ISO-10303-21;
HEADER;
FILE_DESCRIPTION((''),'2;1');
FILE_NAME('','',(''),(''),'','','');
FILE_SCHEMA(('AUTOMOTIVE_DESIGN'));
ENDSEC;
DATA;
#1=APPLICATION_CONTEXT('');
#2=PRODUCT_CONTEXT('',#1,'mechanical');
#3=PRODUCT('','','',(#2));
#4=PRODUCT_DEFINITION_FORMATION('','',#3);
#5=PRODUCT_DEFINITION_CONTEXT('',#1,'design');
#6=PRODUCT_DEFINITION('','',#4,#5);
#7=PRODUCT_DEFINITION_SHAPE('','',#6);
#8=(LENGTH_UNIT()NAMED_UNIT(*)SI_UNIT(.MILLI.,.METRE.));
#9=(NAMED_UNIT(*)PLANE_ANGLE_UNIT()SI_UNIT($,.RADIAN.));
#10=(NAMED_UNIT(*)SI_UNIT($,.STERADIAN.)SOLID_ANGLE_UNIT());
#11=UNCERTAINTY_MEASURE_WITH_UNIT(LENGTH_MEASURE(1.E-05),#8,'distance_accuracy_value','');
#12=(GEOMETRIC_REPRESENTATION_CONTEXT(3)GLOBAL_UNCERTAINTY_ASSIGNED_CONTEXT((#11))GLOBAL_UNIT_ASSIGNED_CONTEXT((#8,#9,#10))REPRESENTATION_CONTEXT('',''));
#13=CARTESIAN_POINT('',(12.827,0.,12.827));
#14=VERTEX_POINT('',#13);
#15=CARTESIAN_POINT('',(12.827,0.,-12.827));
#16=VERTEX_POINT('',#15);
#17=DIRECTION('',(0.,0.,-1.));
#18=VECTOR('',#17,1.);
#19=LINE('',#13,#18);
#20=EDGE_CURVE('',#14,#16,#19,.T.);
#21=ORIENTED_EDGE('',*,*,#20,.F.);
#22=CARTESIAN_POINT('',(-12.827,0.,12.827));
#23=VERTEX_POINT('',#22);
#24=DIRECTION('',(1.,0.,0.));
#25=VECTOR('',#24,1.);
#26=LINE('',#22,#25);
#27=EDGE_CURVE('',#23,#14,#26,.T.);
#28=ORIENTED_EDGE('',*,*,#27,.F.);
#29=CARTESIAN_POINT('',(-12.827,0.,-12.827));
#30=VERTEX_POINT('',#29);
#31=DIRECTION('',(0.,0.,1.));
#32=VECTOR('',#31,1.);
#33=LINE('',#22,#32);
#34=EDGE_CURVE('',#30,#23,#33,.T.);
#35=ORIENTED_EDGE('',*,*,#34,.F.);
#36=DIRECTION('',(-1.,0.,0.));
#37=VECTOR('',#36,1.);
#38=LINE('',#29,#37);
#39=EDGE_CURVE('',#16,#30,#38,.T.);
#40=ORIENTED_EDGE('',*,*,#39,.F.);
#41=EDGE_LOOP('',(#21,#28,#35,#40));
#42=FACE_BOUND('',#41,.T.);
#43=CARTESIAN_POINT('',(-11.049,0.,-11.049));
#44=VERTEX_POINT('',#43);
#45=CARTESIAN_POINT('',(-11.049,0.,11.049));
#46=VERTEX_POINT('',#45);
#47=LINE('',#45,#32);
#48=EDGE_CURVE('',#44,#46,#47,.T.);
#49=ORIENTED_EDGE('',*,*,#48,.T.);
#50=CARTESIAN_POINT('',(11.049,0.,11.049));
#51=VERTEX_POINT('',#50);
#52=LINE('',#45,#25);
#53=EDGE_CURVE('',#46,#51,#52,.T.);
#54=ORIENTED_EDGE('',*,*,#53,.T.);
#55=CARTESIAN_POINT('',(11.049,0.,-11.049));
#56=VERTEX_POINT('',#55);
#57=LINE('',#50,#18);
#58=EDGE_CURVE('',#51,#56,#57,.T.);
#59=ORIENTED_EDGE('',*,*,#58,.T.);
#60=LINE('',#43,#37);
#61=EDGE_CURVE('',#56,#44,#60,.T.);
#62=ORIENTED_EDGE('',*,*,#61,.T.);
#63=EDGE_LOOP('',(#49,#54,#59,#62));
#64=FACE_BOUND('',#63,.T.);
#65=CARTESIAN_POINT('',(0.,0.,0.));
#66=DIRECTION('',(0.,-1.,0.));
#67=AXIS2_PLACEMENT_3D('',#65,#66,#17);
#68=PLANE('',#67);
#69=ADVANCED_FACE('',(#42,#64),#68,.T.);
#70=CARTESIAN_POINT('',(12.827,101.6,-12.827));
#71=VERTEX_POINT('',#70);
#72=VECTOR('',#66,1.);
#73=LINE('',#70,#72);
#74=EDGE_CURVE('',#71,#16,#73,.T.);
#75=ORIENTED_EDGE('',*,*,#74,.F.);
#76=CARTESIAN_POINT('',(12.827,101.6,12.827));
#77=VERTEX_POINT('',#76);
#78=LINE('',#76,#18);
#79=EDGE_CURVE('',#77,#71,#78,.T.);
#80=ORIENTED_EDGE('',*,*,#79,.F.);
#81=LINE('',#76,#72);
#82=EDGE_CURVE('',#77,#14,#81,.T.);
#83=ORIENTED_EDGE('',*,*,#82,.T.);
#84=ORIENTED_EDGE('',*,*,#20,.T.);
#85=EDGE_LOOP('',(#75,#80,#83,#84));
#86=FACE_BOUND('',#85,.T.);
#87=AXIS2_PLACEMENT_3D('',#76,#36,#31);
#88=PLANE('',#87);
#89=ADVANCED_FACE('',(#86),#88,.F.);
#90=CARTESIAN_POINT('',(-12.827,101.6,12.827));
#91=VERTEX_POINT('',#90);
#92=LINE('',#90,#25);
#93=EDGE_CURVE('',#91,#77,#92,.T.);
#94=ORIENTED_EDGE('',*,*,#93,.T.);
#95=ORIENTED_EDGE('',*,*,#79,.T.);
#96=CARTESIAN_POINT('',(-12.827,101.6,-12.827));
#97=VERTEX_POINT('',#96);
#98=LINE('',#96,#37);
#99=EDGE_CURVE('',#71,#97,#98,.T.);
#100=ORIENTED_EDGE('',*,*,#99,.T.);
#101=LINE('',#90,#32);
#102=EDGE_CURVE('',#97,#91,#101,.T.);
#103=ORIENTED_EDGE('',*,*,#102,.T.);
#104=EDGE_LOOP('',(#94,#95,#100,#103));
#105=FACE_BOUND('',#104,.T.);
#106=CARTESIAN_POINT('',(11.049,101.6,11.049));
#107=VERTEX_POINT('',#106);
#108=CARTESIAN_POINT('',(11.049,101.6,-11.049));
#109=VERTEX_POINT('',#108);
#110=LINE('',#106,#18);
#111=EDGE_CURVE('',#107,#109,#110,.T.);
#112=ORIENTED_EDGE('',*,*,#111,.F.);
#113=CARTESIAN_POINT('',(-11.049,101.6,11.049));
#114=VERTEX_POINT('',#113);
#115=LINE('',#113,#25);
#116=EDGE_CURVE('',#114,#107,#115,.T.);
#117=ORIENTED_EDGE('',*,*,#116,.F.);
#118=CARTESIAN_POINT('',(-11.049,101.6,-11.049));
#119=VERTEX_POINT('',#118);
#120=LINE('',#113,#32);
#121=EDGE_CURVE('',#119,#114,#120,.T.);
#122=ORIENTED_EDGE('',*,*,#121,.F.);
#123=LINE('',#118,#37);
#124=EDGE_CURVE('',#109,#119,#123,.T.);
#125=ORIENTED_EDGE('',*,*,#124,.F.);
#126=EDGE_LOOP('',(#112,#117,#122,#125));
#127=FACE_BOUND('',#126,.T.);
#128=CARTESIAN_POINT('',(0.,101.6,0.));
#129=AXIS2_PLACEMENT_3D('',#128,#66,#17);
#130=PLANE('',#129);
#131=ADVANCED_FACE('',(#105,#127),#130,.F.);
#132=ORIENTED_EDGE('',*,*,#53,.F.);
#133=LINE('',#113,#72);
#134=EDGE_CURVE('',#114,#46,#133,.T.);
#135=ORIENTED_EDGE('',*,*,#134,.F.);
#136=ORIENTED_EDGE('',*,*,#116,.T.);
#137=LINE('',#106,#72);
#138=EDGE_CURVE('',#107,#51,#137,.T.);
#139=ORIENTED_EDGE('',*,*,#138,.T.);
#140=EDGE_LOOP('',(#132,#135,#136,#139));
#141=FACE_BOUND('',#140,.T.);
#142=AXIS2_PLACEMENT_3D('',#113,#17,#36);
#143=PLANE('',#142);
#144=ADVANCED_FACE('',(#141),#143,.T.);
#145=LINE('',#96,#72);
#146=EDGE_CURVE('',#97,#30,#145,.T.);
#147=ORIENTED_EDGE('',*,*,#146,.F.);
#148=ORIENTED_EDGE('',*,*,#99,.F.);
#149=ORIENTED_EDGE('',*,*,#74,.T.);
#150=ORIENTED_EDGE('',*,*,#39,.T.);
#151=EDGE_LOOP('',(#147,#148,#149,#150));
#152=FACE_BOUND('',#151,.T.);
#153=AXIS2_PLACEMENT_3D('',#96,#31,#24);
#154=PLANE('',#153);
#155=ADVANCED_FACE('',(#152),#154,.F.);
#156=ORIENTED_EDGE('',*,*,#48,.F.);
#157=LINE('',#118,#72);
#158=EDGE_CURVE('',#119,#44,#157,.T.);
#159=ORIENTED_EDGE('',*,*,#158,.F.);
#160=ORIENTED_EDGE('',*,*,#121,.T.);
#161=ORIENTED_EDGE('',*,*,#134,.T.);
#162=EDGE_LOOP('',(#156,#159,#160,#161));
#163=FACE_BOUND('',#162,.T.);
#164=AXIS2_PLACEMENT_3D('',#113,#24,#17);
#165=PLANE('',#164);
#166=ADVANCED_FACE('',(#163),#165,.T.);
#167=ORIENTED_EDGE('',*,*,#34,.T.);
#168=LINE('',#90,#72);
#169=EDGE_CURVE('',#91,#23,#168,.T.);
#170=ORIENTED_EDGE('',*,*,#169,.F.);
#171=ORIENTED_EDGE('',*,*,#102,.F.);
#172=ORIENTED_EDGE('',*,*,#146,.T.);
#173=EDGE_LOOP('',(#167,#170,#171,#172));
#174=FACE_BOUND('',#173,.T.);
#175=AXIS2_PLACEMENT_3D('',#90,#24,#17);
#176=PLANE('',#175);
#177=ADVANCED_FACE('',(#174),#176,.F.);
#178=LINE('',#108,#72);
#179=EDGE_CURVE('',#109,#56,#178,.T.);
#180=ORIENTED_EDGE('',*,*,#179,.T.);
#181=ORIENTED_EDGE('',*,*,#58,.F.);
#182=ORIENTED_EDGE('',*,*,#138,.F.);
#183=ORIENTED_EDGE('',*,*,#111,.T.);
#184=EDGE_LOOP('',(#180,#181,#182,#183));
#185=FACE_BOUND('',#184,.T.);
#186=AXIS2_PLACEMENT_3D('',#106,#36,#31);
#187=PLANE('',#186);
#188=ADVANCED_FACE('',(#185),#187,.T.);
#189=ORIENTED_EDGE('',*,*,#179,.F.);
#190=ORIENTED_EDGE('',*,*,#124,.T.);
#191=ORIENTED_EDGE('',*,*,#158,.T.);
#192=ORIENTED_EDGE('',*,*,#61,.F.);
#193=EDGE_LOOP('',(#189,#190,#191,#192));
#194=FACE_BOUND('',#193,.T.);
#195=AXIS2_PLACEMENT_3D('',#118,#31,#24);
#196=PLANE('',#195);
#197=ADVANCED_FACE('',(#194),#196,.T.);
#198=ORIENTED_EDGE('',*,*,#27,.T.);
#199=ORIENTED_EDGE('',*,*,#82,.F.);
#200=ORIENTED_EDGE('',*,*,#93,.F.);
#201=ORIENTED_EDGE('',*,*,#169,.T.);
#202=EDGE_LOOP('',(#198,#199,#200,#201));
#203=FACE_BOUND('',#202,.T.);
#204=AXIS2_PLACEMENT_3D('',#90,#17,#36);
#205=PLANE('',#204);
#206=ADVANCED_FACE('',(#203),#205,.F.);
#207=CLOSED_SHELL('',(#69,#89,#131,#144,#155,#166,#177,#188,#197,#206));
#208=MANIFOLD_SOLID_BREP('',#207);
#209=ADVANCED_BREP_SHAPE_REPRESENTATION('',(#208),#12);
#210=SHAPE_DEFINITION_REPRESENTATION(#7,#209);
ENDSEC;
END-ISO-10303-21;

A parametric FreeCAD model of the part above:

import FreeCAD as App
import Part
import Sketcher
Q = App.Units.Quantity


def add_polygon(sketch, points):
    """Adds a closed chain of lines whose ends are joined by coincident constraints."""
    first, n = sketch.GeometryCount, len(points)
    for a, b in zip(points, points[1:] + points[:1]):
        sketch.addGeometry(Part.LineSegment(App.Vector(*a, 0), App.Vector(*b, 0)), False)
    for i in range(n):
        sketch.addConstraint(Sketcher.Constraint("Coincident", first + i, 2, first + (i + 1) % n, 1))

doc = App.newDocument("Part")
body = doc.addObject("PartDesign::Body", "Body")

# Sketch on XZ plane
sketch1 = body.newObject("Sketcher::SketchObject", "Sketch")
sketch1.AttachmentSupport = (doc.getObject("XZ_Plane"), [""])
sketch1.MapMode = "FlatFace"
add_polygon(sketch1, [(-12.827, -12.827), (-12.827, 12.827), (12.827, 12.827), (12.827, -12.827)])  # lines 0-3
add_polygon(sketch1, [(11.049, 11.049), (-11.049, 11.049), (-11.049, -11.049), (11.049, -11.049)])  # lines 4-7
sketch1.addConstraint(Sketcher.Constraint("Vertical", 0))
sketch1.addConstraint(Sketcher.Constraint("Horizontal", 1))
sketch1.addConstraint(Sketcher.Constraint("Vertical", 2))
sketch1.addConstraint(Sketcher.Constraint("Horizontal", 3))
sketch1.addConstraint(Sketcher.Constraint("Horizontal", 4))
sketch1.addConstraint(Sketcher.Constraint("Vertical", 5))
sketch1.addConstraint(Sketcher.Constraint("Horizontal", 6))
sketch1.addConstraint(Sketcher.Constraint("Vertical", 7))
sketch1.addConstraint(Sketcher.Constraint("Symmetric", 0, 2, 2, 2, -1, 1))
sketch1.addConstraint(Sketcher.Constraint("Symmetric", 4, 2, 6, 2, -1, 1))
sketch1.addConstraint(Sketcher.Constraint("Equal", 3, 0))
sketch1.addConstraint(Sketcher.Constraint("Equal", 6, 5))
sketch1.addConstraint(Sketcher.Constraint("DistanceX", 1, 1, 1, 2, Q("1.01 in")))
sketch1.addConstraint(Sketcher.Constraint("DistanceX", 4, 2, 4, 1, Q("0.87 in")))
pad1 = body.newObject("PartDesign::Pad", "Pad")
pad1.Profile = sketch1
pad1.Length = Q("4 in")
pad1.Reversed = True

doc.recompute()
